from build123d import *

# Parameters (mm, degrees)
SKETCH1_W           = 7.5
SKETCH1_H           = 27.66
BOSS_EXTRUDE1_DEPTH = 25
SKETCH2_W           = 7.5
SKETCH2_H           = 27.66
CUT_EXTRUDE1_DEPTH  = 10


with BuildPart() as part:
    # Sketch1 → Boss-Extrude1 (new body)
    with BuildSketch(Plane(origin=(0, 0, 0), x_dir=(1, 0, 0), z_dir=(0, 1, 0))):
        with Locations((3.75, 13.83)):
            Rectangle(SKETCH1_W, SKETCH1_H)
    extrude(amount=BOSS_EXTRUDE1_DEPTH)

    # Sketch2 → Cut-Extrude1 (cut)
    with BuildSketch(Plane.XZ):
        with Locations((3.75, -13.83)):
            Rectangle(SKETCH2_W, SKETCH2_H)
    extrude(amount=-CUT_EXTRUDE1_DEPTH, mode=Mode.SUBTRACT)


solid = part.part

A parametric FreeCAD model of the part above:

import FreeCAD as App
import Part
import Sketcher
Q = App.Units.Quantity

doc = App.newDocument("Part")
params = doc.addObject("Spreadsheet::Sheet", "Params")
for row, (alias, value) in enumerate([
    ("sketch1_width", "7.5 mm"),
    ("sketch1_height", "27.66 mm"),
    ("pad1_length", "25 mm"),
    ("sketch2_width", "7.5 mm"),
    ("sketch2_height", "27.66 mm"),
    ("pocket1_length", "10 mm"),
], start=1):
    params.set(f"A{row}", alias)
    params.set(f"B{row}", "=" + value)
    params.setAlias(f"B{row}", alias)

body = doc.addObject("PartDesign::Body", "Body")

# Sketch on XZ plane
sketch1 = body.newObject("Sketcher::SketchObject", "Sketch")
sketch1.AttachmentSupport = (doc.getObject("XZ_Plane"), [""])
sketch1.MapMode = "FlatFace"
sketch1.addGeometry(Part.LineSegment(App.Vector(0, -28, 0), App.Vector(0, 0, 0)), False)
sketch1.addGeometry(Part.LineSegment(App.Vector(0, 0, 0), App.Vector(8, 0, 0)), False)
sketch1.addGeometry(Part.LineSegment(App.Vector(8, 0, 0), App.Vector(8, -28, 0)), False)
sketch1.addGeometry(Part.LineSegment(App.Vector(8, -28, 0), App.Vector(0, -28, 0)), False)
sketch1.addConstraint(Sketcher.Constraint("Coincident", 0, 2, 1, 1))
sketch1.addConstraint(Sketcher.Constraint("Coincident", 1, 2, 2, 1))
sketch1.addConstraint(Sketcher.Constraint("Coincident", 2, 2, 3, 1))
sketch1.addConstraint(Sketcher.Constraint("Coincident", 3, 2, 0, 1))
sketch1.addConstraint(Sketcher.Constraint("Vertical", 0))
sketch1.addConstraint(Sketcher.Constraint("Horizontal", 1))
sketch1.addConstraint(Sketcher.Constraint("Vertical", 2))
sketch1.addConstraint(Sketcher.Constraint("Horizontal", 3))
sketch1.addConstraint(Sketcher.Constraint("Coincident", 0, 2, -1, 1))
sketch1.addConstraint(Sketcher.Constraint("DistanceX", 1, 1, 1, 2, Q("7.5 mm")))
sketch1.addConstraint(Sketcher.Constraint("DistanceY", 0, 1, 0, 2, Q("27.66 mm")))
sketch1.setExpression("Constraints[9]", "Params.sketch1_width")
sketch1.setExpression("Constraints[10]", "Params.sketch1_height")
pad1 = body.newObject("PartDesign::Pad", "Pad")
pad1.Profile = sketch1
pad1.setExpression("Length", "Params.pad1_length")
pad1.Reversed = True

# Sketch on XZ plane
sketch2 = body.newObject("Sketcher::SketchObject", "Sketch001")
sketch2.AttachmentSupport = (doc.getObject("XZ_Plane"), [""])
sketch2.MapMode = "FlatFace"
sketch2.addGeometry(Part.LineSegment(App.Vector(0, 0, 0), App.Vector(0, -28, 0)), False)
sketch2.addGeometry(Part.LineSegment(App.Vector(0, -28, 0), App.Vector(8, -28, 0)), False)
sketch2.addGeometry(Part.LineSegment(App.Vector(8, -28, 0), App.Vector(8, 0, 0)), False)
sketch2.addGeometry(Part.LineSegment(App.Vector(8, 0, 0), App.Vector(0, 0, 0)), False)
sketch2.addConstraint(Sketcher.Constraint("Coincident", 0, 2, 1, 1))
sketch2.addConstraint(Sketcher.Constraint("Coincident", 1, 2, 2, 1))
sketch2.addConstraint(Sketcher.Constraint("Coincident", 2, 2, 3, 1))
sketch2.addConstraint(Sketcher.Constraint("Coincident", 3, 2, 0, 1))
sketch2.addConstraint(Sketcher.Constraint("Vertical", 0))
sketch2.addConstraint(Sketcher.Constraint("Horizontal", 1))
sketch2.addConstraint(Sketcher.Constraint("Vertical", 2))
sketch2.addConstraint(Sketcher.Constraint("Horizontal", 3))
sketch2.addConstraint(Sketcher.Constraint("Coincident", 3, 2, -1, 1))
sketch2.addConstraint(Sketcher.Constraint("DistanceX", 1, 1, 1, 2, Q("7.5 mm")))
sketch2.addConstraint(Sketcher.Constraint("DistanceY", 0, 2, 0, 1, Q("27.66 mm")))
sketch2.setExpression("Constraints[9]", "Params.sketch2_width")
sketch2.setExpression("Constraints[10]", "Params.sketch2_height")
pocket1 = body.newObject("PartDesign::Pocket", "Pocket")
pocket1.Profile = sketch2
pocket1.setExpression("Length", "Params.pocket1_length")

doc.recompute()
